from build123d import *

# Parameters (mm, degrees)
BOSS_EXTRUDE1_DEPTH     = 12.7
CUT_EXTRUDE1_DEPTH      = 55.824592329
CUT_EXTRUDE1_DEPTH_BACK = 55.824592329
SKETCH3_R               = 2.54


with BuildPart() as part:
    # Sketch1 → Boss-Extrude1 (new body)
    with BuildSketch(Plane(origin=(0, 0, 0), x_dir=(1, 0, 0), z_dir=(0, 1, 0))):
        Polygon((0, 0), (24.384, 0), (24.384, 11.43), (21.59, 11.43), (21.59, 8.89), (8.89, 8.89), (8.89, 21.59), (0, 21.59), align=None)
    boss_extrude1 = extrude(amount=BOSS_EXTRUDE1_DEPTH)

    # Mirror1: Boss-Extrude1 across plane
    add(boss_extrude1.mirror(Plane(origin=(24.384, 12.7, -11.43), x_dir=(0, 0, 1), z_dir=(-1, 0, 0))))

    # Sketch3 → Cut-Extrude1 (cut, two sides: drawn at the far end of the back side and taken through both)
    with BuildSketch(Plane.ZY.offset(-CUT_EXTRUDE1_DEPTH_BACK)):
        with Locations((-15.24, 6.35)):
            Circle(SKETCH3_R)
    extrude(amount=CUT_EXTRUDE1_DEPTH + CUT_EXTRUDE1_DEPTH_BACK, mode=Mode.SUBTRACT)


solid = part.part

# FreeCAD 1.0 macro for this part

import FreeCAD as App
import Part
import Sketcher
from FreeCAD import Vector
Q = App.Units.Quantity


def add_polygon(sketch, points):
    """Adds a closed chain of lines whose ends are joined by coincident constraints."""
    first, n = sketch.GeometryCount, len(points)
    for a, b in zip(points, points[1:] + points[:1]):
        sketch.addGeometry(Part.LineSegment(App.Vector(*a, 0), App.Vector(*b, 0)), False)
    for i in range(n):
        sketch.addConstraint(Sketcher.Constraint("Coincident", first + i, 2, first + (i + 1) % n, 1))

doc = App.newDocument("Part")
body = doc.addObject("PartDesign::Body", "Body")

# Sketch on XZ plane
sketch1 = body.newObject("Sketcher::SketchObject", "Sketch")
sketch1.AttachmentSupport = (doc.getObject("XZ_Plane"), [""])
sketch1.MapMode = "FlatFace"
add_polygon(sketch1, [(0, 0), (24.4, 0), (24.4, -11.4), (21.6, -11.4), (21.6, -8.9), (8.9, -8.9), (8.9, -21.6), (0, -21.6)])  # lines 0-7
sketch1.addConstraint([
    Sketcher.Constraint("Horizontal", 0),
    Sketcher.Constraint("Vertical", 1),
    Sketcher.Constraint("Horizontal", 2),
    Sketcher.Constraint("Vertical", 3),
    Sketcher.Constraint("Horizontal", 4),
    Sketcher.Constraint("Vertical", 5),
    Sketcher.Constraint("Horizontal", 6),
    Sketcher.Constraint("Vertical", 7),
    Sketcher.Constraint("Coincident", 7, 2, -1, 1),
    Sketcher.Constraint("Equal", 4, 5),
    Sketcher.Constraint("DistanceX", 4, 2, 4, 1, Q("0.5 in")),
    Sketcher.Constraint("DistanceY", 3, 1, 3, 2, Q("0.1 in")),
    Sketcher.Constraint("DistanceX", 0, 1, 0, 2, Q("0.96 in")),
    Sketcher.Constraint("DistanceX", 2, 2, 2, 1, Q("0.11 in")),
    Sketcher.Constraint("DistanceY", 1, 2, 1, 1, Q("0.45 in")),
])
pad1 = body.newObject("PartDesign::Pad", "Pad")
pad1.Profile = sketch1
pad1.Length = Q("0.5 in")
pad1.Reversed = True
doc.recompute()

datumplane = body.newObject("PartDesign::Plane", "DatumPlane")
datumplane.AttachmentSupport = (doc.getObject("YZ_Plane"), [""])
datumplane.MapMode = "FlatFace"
datumplane.AttachmentOffset = App.Placement(Vector(0, 0, 0.96 * 25.4), App.Rotation())
mirrored = body.newObject("PartDesign::Mirrored", "Mirrored")
mirrored.Originals = [pad1]
mirrored.MirrorPlane = (datumplane, [""])
body.Tip = mirrored

# Sketch on YZ plane
sketch2 = body.newObject("Sketcher::SketchObject", "Sketch001")
sketch2.AttachmentSupport = (doc.getObject("YZ_Plane"), [""])
sketch2.MapMode = "FlatFace"
sketch2.addGeometry(Part.Circle(Vector(6.3, -15.2, 0), Vector(0, 0, 1), 2.5), False)
sketch2.addConstraint([
    Sketcher.Constraint("Diameter", 0, Q("0.2 in")),
    Sketcher.Constraint("DistanceY", 0, 3, -1, 1, Q("0.6 in")),
    Sketcher.Constraint("DistanceX", -1, 1, 0, 3, Q("0.25 in")),
])
pocket1 = body.newObject("PartDesign::Pocket", "Pocket")
pocket1.Profile = sketch2
pocket1.Type = "ThroughAll"
pocket1.Midplane = True

doc.recompute()
